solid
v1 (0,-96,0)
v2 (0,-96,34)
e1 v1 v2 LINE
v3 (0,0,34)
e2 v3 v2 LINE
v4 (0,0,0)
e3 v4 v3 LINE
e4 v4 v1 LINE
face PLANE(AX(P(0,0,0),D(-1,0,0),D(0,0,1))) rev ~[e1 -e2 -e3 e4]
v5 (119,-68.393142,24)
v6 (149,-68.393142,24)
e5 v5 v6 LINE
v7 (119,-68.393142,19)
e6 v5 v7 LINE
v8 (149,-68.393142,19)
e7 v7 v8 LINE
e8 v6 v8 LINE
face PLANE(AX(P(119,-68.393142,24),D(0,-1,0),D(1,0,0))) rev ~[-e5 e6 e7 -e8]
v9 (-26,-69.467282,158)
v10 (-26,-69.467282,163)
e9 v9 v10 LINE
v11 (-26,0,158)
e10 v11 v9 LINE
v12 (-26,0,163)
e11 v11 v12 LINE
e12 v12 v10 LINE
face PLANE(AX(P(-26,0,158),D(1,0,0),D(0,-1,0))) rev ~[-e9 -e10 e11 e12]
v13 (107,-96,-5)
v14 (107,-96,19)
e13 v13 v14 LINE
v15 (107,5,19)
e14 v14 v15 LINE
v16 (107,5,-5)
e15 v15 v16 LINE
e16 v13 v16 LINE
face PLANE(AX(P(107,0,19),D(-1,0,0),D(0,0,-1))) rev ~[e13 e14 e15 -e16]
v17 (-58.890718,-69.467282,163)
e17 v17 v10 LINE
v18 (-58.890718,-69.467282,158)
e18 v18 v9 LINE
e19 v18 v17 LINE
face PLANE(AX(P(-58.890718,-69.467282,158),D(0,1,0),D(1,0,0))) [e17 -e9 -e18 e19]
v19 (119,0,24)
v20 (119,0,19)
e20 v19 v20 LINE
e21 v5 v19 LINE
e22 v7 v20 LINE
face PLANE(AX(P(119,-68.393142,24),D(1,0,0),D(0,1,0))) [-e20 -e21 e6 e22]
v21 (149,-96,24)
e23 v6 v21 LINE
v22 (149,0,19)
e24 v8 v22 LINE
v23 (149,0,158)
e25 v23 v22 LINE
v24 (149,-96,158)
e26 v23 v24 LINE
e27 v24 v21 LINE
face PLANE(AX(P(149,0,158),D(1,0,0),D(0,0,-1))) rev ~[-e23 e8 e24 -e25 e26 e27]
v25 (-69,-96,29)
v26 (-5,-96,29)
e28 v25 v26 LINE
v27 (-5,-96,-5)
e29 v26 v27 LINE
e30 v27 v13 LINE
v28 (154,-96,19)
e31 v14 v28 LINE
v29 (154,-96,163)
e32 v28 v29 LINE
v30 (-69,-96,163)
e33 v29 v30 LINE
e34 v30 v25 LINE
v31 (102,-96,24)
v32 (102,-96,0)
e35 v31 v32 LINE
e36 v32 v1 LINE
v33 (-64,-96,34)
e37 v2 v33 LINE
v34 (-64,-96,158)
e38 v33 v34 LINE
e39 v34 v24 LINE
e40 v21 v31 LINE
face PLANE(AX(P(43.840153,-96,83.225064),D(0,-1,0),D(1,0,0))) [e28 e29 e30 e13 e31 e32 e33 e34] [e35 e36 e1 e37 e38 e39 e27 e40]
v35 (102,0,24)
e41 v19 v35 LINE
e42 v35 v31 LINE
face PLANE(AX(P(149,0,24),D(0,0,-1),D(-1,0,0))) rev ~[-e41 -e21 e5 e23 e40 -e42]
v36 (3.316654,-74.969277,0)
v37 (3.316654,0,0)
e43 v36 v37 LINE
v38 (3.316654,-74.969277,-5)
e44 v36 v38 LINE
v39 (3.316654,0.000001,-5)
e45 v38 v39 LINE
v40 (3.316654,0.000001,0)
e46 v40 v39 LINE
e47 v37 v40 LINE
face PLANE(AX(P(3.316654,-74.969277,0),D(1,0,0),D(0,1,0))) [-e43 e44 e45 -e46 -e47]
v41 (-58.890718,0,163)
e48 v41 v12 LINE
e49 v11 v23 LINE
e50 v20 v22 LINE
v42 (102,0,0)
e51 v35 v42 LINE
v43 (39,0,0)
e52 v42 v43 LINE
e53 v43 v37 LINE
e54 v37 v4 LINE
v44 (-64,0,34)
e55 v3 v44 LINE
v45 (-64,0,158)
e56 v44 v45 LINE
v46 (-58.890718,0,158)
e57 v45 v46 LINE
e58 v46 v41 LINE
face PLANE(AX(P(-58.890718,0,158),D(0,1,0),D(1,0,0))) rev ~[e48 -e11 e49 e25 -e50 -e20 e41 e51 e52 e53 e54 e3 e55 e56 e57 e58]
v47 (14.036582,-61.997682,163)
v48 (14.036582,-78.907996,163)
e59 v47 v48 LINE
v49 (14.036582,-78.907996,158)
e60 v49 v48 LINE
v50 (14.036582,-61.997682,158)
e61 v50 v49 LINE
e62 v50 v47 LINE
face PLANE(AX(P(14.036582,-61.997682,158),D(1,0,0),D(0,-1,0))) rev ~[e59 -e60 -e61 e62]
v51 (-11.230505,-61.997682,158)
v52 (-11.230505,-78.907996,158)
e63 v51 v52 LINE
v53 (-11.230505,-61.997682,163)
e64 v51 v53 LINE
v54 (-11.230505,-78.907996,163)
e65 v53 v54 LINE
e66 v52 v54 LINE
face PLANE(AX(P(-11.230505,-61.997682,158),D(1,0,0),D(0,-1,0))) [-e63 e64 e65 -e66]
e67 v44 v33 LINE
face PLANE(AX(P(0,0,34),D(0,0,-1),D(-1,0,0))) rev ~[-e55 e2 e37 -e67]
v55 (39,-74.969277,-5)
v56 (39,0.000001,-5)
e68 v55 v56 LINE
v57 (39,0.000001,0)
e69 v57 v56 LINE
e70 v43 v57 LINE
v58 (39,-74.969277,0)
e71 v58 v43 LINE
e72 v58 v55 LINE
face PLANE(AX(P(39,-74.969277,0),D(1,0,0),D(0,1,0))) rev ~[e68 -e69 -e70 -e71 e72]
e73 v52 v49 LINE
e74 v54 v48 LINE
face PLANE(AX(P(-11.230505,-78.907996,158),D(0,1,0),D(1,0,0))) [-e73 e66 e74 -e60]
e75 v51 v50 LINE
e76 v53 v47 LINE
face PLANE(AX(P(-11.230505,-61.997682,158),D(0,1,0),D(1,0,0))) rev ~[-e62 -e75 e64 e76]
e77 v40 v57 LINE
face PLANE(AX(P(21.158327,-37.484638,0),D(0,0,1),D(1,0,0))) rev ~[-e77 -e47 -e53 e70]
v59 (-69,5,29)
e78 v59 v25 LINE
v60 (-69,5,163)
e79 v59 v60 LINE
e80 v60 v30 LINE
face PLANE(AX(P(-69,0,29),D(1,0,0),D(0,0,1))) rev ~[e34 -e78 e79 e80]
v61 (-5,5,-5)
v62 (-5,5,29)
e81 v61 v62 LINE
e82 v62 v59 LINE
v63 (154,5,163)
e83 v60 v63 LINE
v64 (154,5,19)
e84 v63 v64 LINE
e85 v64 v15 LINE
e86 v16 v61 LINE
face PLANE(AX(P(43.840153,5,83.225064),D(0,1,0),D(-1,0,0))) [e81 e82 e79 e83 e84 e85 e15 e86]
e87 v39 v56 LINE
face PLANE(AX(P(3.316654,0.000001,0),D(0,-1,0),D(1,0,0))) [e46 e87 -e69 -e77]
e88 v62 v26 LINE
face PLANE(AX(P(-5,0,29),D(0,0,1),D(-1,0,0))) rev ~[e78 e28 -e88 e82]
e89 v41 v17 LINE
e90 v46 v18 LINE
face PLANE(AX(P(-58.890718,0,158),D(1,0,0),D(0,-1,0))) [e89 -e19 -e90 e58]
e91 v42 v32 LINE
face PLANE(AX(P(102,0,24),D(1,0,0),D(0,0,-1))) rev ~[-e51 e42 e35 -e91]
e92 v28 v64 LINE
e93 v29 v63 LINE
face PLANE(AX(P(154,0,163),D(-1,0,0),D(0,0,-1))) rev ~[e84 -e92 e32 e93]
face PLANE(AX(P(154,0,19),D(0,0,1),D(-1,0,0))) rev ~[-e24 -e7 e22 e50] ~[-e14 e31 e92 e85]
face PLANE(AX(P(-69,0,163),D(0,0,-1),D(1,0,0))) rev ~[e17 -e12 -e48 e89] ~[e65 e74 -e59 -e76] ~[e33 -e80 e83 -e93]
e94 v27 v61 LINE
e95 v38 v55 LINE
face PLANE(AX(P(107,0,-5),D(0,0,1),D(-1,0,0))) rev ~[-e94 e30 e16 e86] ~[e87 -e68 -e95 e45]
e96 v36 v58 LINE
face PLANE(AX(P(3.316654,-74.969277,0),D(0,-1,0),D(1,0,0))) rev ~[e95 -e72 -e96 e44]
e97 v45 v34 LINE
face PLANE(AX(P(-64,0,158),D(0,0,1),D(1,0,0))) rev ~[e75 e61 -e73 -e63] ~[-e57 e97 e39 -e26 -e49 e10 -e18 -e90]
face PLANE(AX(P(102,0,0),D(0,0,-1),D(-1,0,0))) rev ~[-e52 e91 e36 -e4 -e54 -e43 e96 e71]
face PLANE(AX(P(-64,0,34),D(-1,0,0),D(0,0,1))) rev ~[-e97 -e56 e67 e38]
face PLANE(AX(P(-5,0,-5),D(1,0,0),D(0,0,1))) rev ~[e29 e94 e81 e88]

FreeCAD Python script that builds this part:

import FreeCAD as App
import Part
import Sketcher

V = App.Vector
Q = App.Units.Quantity


def add_polygon(sketch, points):
    """Adds a closed chain of lines whose ends are joined by coincident constraints."""
    first, n = sketch.GeometryCount, len(points)
    for a, b in zip(points, points[1:] + points[:1]):
        sketch.addGeometry(Part.LineSegment(App.Vector(*a, 0), App.Vector(*b, 0)), False)
    for i in range(n):
        sketch.addConstraint(Sketcher.Constraint("Coincident", first + i, 2, first + (i + 1) % n, 1))

doc = App.newDocument("Part")
body = doc.addObject("PartDesign::Body", "Body")

sketch1 = body.newObject("Sketcher::SketchObject", "Sketch")
sketch1.AttachmentSupport = (doc.getObject("XZ_Plane"), [""])
sketch1.MapMode = "FlatFace"
add_polygon(sketch1, [(-5, -5), (107, -5), (107, 19), (154, 19), (154, 163), (-69, 163), (-69, 29), (-5, 29)])
add_polygon(sketch1, [(102, 24), (102, 0), (0, 0), (0, 34), (-64, 34), (-64, 158), (149, 158), (149, 24)])
sketch1.addConstraint([
    Sketcher.Constraint("Horizontal", 0),
    Sketcher.Constraint("Vertical", 1),
    Sketcher.Constraint("Horizontal", 2),
    Sketcher.Constraint("Vertical", 3),
    Sketcher.Constraint("Horizontal", 4),
    Sketcher.Constraint("Vertical", 5),
    Sketcher.Constraint("Horizontal", 6),
    Sketcher.Constraint("Vertical", 7),
    Sketcher.Constraint("Vertical", 8),
    Sketcher.Constraint("Horizontal", 9),
    Sketcher.Constraint("Vertical", 10),
    Sketcher.Constraint("Horizontal", 11),
    Sketcher.Constraint("Vertical", 12),
    Sketcher.Constraint("Horizontal", 13),
    Sketcher.Constraint("Vertical", 14),
    Sketcher.Constraint("Horizontal", 15),
    Sketcher.Constraint("Coincident", 9, 2, -1, 1),
    Sketcher.Constraint("Equal", 6, 11),
    Sketcher.Constraint("Equal", 2, 15),
    Sketcher.Constraint("Equal", 1, 8),
    Sketcher.Constraint("Equal", 7, 10),
    Sketcher.Constraint("Equal", 5, 14),
    Sketcher.Constraint("DistanceX", 0, 1, 0, 2, Q("112 mm")),
    Sketcher.Constraint("DistanceX", 2, 1, 2, 2, Q("47 mm")),
    Sketcher.Constraint("DistanceX", 4, 2, 4, 1, Q("223 mm")),
    Sketcher.Constraint("DistanceX", 9, 2, 9, 1, Q("102 mm")),
    Sketcher.Constraint("DistanceY", 1, 1, 1, 2, Q("24 mm")),
    Sketcher.Constraint("DistanceY", 3, 1, 3, 2, Q("144 mm")),
    Sketcher.Constraint("DistanceY", 5, 2, 5, 1, Q("134 mm")),
    Sketcher.Constraint("DistanceX", -1, 1, 0, 2, Q("107 mm")),
    Sketcher.Constraint("DistanceY", 0, 2, -1, 1, Q("5 mm")),
])
pad1 = body.newObject("PartDesign::Pad", "Pad")
pad1.Profile = sketch1
pad1.Length = 96

sketch2 = body.newObject("Sketcher::SketchObject", "Sketch001")
sketch2.AttachmentSupport = (doc.getObject("XZ_Plane"), [""])
sketch2.MapMode = "FlatFace"
add_polygon(sketch2, [(-69, 163), (154, 163), (154, 19), (107, 19), (107, -5), (-5, -5), (-5, 29), (-69, 29)])
sketch2.addConstraint([
    Sketcher.Constraint("Horizontal", 0),
    Sketcher.Constraint("Vertical", 1),
    Sketcher.Constraint("Horizontal", 2),
    Sketcher.Constraint("Vertical", 3),
    Sketcher.Constraint("Horizontal", 4),
    Sketcher.Constraint("Vertical", 5),
    Sketcher.Constraint("Horizontal", 6),
    Sketcher.Constraint("Vertical", 7),
    Sketcher.Constraint("DistanceX", 0, 1, 0, 2, Q("223 mm")),
    Sketcher.Constraint("DistanceX", 2, 2, 2, 1, Q("47 mm")),
    Sketcher.Constraint("DistanceX", 4, 2, 4, 1, Q("112 mm")),
    Sketcher.Constraint("DistanceY", 1, 2, 1, 1, Q("144 mm")),
    Sketcher.Constraint("DistanceY", 3, 2, 3, 1, Q("24 mm")),
    Sketcher.Constraint("DistanceY", 5, 1, 5, 2, Q("34 mm")),
    Sketcher.Constraint("DistanceX", -1, 1, 0, 2, Q("154 mm")),
    Sketcher.Constraint("DistanceY", -1, 1, 0, 2, Q("163 mm")),
])
pad2 = body.newObject("PartDesign::Pad", "Pad001")
pad2.Profile = sketch2
pad2.Length = 5
pad2.Reversed = True

sketch3 = body.newObject("Sketcher::SketchObject", "Sketch002")
sketch3.AttachmentSupport = (doc.getObject("XY_Plane"), [""])
sketch3.MapMode = "FlatFace"
add_polygon(sketch3, [(3, 0), (3, -75), (39, -75), (39, 0)])
sketch3.addConstraint([
    Sketcher.Constraint("Vertical", 0),
    Sketcher.Constraint("Horizontal", 1),
    Sketcher.Constraint("Vertical", 2),
    Sketcher.Constraint("Horizontal", 3),
    Sketcher.Constraint("PointOnObject", 2, 2, -1),
    Sketcher.Constraint("DistanceX", -1, 1, 1, 2, Q("39 mm")),
    Sketcher.Constraint("DistanceX", 1, 1, 1, 2, Q("35.683347 mm")),
    Sketcher.Constraint("DistanceY", 0, 2, 0, 1, Q("74.969277 mm")),
])
pocket1 = body.newObject("PartDesign::Pocket", "Pocket")
pocket1.Profile = sketch3
pocket1.Length = 25

sketch4 = body.newObject("Sketcher::SketchObject", "Sketch003")
sketch4.AttachmentSupport = (doc.getObject("XY_Plane"), [""])
sketch4.MapMode = "FlatFace"
sketch4.AttachmentOffset = App.Placement(V(0, 0, 24), App.Rotation())
add_polygon(sketch4, [(119, 0), (119, -68), (149, -68), (149, 0)])
sketch4.addConstraint([
    Sketcher.Constraint("Vertical", 0),
    Sketcher.Constraint("Horizontal", 1),
    Sketcher.Constraint("Vertical", 2),
    Sketcher.Constraint("Horizontal", 3),
    Sketcher.Constraint("PointOnObject", 2, 2, -1),
    Sketcher.Constraint("DistanceX", 1, 1, 1, 2, Q("30 mm")),
    Sketcher.Constraint("DistanceX", -1, 1, 0, 2, Q("119 mm")),
    Sketcher.Constraint("DistanceY", 0, 2, 0, 1, Q("68.393142 mm")),
])
pocket2 = body.newObject("PartDesign::Pocket", "Pocket001")
pocket2.Profile = sketch4
pocket2.Length = 25

sketch5 = body.newObject("Sketcher::SketchObject", "Sketch004")
sketch5.AttachmentSupport = (doc.getObject("XY_Plane"), [""])
sketch5.MapMode = "FlatFace"
sketch5.AttachmentOffset = App.Placement(V(0, 0, 158), App.Rotation())
add_polygon(sketch5, [(-59, -69), (-59, 0), (-26, 0), (-26, -69)])
sketch5.addConstraint([
    Sketcher.Constraint("Vertical", 0),
    Sketcher.Constraint("Horizontal", 1),
    Sketcher.Constraint("Vertical", 2),
    Sketcher.Constraint("Horizontal", 3),
    Sketcher.Constraint("PointOnObject", 0, 2, -1),
    Sketcher.Constraint("DistanceX", 1, 2, -1, 1, Q("26 mm")),
    Sketcher.Constraint("DistanceX", 1, 1, 1, 2, Q("32.890719 mm")),
    Sketcher.Constraint("DistanceY", 0, 1, 0, 2, Q("69.467282 mm")),
])
pocket3 = body.newObject("PartDesign::Pocket", "Pocket002")
pocket3.Profile = sketch5
pocket3.Length = 25
pocket3.Reversed = True

sketch6 = body.newObject("Sketcher::SketchObject", "Sketch005")
sketch6.AttachmentSupport = (doc.getObject("XY_Plane"), [""])
sketch6.MapMode = "FlatFace"
sketch6.AttachmentOffset = App.Placement(V(0, 0, 158), App.Rotation())
add_polygon(sketch6, [(-11, -79), (-11, -62), (14, -62), (14, -79)])
sketch6.addConstraint([
    Sketcher.Constraint("Vertical", 0),
    Sketcher.Constraint("Horizontal", 1),
    Sketcher.Constraint("Vertical", 2),
    Sketcher.Constraint("Horizontal", 3),
    Sketcher.Constraint("DistanceX", 1, 1, 1, 2, Q("25.267087 mm")),
    Sketcher.Constraint("DistanceY", 0, 1, 0, 2, Q("16.910314 mm")),
    Sketcher.Constraint("DistanceY", 0, 2, -1, 1, Q("61.997682 mm")),
    Sketcher.Constraint("DistanceX", 0, 2, -1, 1, Q("11.230505 mm")),
])
pocket4 = body.newObject("PartDesign::Pocket", "Pocket003")
pocket4.Profile = sketch6
pocket4.Length = 25
pocket4.Reversed = True

doc.recompute()
